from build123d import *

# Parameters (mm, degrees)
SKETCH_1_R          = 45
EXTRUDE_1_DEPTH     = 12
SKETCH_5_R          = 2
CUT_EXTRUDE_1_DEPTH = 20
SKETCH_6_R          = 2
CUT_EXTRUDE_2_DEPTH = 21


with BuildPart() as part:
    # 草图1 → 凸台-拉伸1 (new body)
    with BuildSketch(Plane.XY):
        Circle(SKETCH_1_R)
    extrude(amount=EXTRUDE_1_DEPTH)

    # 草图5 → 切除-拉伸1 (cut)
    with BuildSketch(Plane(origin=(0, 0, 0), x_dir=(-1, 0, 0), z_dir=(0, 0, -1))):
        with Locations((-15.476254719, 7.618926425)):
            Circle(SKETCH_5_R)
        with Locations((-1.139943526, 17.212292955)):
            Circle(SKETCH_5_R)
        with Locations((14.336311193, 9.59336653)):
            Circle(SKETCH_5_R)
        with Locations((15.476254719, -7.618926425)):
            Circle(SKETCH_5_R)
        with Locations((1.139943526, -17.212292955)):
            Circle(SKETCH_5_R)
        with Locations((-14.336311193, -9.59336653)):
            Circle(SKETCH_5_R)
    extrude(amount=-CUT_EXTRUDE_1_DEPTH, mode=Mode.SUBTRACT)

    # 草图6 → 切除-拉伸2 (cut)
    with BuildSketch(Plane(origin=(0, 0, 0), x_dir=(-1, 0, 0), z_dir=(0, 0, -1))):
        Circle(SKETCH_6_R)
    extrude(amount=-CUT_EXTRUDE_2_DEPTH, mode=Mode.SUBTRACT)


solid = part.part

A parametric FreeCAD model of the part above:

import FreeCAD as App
import Part
import Sketcher

doc = App.newDocument("Part")
body = doc.addObject("PartDesign::Body", "Body")

# Sketch on XY plane
sketch1 = body.newObject("Sketcher::SketchObject", "Sketch")
sketch1.AttachmentSupport = (doc.getObject("XY_Plane"), [""])
sketch1.MapMode = "FlatFace"
sketch1.addGeometry(Part.Circle(App.Vector(0, 0, 0), App.Vector(0, 0, 1), 45), False)
sketch1.addConstraint(Sketcher.Constraint("Coincident", 0, 3, -1, 1))
sketch1.addConstraint(Sketcher.Constraint("Diameter", 0, 90.0))
pad1 = body.newObject("PartDesign::Pad", "Pad")
pad1.Profile = sketch1
pad1.Length = 12

# Sketch on XY plane
sketch2 = body.newObject("Sketcher::SketchObject", "Sketch001")
sketch2.AttachmentSupport = (doc.getObject("XY_Plane"), [""])
sketch2.MapMode = "FlatFace"
sketch2.addGeometry(Part.Circle(App.Vector(15.5, 7.6, 0), App.Vector(0, 0, 1), 2), False)
sketch2.addGeometry(Part.Circle(App.Vector(1.1, 17.2, 0), App.Vector(0, 0, 1), 2), False)
sketch2.addGeometry(Part.Circle(App.Vector(-14.3, 9.6, 0), App.Vector(0, 0, 1), 2), False)
sketch2.addGeometry(Part.Circle(App.Vector(-15.5, -7.6, 0), App.Vector(0, 0, 1), 2), False)
sketch2.addGeometry(Part.Circle(App.Vector(-1.1, -17.2, 0), App.Vector(0, 0, 1), 2), False)
sketch2.addGeometry(Part.Circle(App.Vector(14.3, -9.6, 0), App.Vector(0, 0, 1), 2), False)
sketch2.addConstraint(Sketcher.Constraint("Equal", 0, 1))
sketch2.addConstraint(Sketcher.Constraint("Equal", 1, 2))
sketch2.addConstraint(Sketcher.Constraint("Equal", 2, 3))
sketch2.addConstraint(Sketcher.Constraint("Equal", 3, 4))
sketch2.addConstraint(Sketcher.Constraint("Equal", 4, 5))
sketch2.addConstraint(Sketcher.Constraint("Symmetric", 0, 3, 3, 3, -1, 1))
sketch2.addConstraint(Sketcher.Constraint("Symmetric", 1, 3, 4, 3, -1, 1))
sketch2.addConstraint(Sketcher.Constraint("Symmetric", 2, 3, 5, 3, -1, 1))
sketch2.addConstraint(Sketcher.Constraint("Diameter", 0, 4.0))
sketch2.addConstraint(Sketcher.Constraint("DistanceX", 3, 3, 1, 3, 16.616198))
sketch2.addConstraint(Sketcher.Constraint("DistanceX", 2, 3, -1, 1, 14.336311))
sketch2.addConstraint(Sketcher.Constraint("DistanceX", 1, 3, 0, 3, 14.336311))
sketch2.addConstraint(Sketcher.Constraint("DistanceY", 0, 3, 2, 3, 1.97444))
sketch2.addConstraint(Sketcher.Constraint("DistanceY", 3, 3, 1, 3, 24.831219))
sketch2.addConstraint(Sketcher.Constraint("DistanceY", -1, 1, 0, 3, 7.618926))
pocket1 = body.newObject("PartDesign::Pocket", "Pocket")
pocket1.Profile = sketch2
pocket1.Length = 20
pocket1.Reversed = True

# Sketch on XY plane
sketch3 = body.newObject("Sketcher::SketchObject", "Sketch002")
sketch3.AttachmentSupport = (doc.getObject("XY_Plane"), [""])
sketch3.MapMode = "FlatFace"
sketch3.addGeometry(Part.Circle(App.Vector(0, 0, 0), App.Vector(0, 0, 1), 2), False)
sketch3.addConstraint(Sketcher.Constraint("Coincident", 0, 3, -1, 1))
sketch3.addConstraint(Sketcher.Constraint("Diameter", 0, 4.0))
pocket2 = body.newObject("PartDesign::Pocket", "Pocket001")
pocket2.Profile = sketch3
pocket2.Length = 21
pocket2.Reversed = True

doc.recompute()
